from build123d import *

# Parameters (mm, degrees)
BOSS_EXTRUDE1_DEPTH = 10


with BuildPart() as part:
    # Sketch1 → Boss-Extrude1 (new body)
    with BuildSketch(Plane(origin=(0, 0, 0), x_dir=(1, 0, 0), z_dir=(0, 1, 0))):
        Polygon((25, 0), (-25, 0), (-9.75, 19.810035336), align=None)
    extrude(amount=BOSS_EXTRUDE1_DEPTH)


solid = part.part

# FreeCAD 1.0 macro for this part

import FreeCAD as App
import Part
import Sketcher
from FreeCAD import Vector
Q = App.Units.Quantity

doc = App.newDocument("Part")
body = doc.addObject("PartDesign::Body", "Body")

# Sketch on XZ plane
sketch1 = body.newObject("Sketcher::SketchObject", "Sketch")
sketch1.AttachmentSupport = (doc.getObject("XZ_Plane"), [""])
sketch1.MapMode = "FlatFace"
sketch1.addGeometry([
    Part.LineSegment(Vector(-25, 0, 0), Vector(25, 0, 0)),
    Part.LineSegment(Vector(25, 0, 0), Vector(-10, -20, 0)),
    Part.LineSegment(Vector(-10, -20, 0), Vector(-25, 0, 0)),
], False)
sketch1.addConstraint([
    Sketcher.Constraint("Coincident", 0, 2, 1, 1),
    Sketcher.Constraint("Coincident", 1, 2, 2, 1),
    Sketcher.Constraint("Coincident", 2, 2, 0, 1),
    Sketcher.Constraint("Horizontal", 0),
    Sketcher.Constraint("Symmetric", 0, 2, 2, 2, -1, 1),
    Sketcher.Constraint("DistanceX", 0, 1, 0, 2, Q("50 mm")),
    Sketcher.Constraint("Distance", 1, Q("40 mm")),
    Sketcher.Constraint("Distance", 2, Q("25 mm")),
])
pad1 = body.newObject("PartDesign::Pad", "Pad")
pad1.Profile = sketch1
pad1.Length = 10
pad1.Reversed = True

doc.recompute()
